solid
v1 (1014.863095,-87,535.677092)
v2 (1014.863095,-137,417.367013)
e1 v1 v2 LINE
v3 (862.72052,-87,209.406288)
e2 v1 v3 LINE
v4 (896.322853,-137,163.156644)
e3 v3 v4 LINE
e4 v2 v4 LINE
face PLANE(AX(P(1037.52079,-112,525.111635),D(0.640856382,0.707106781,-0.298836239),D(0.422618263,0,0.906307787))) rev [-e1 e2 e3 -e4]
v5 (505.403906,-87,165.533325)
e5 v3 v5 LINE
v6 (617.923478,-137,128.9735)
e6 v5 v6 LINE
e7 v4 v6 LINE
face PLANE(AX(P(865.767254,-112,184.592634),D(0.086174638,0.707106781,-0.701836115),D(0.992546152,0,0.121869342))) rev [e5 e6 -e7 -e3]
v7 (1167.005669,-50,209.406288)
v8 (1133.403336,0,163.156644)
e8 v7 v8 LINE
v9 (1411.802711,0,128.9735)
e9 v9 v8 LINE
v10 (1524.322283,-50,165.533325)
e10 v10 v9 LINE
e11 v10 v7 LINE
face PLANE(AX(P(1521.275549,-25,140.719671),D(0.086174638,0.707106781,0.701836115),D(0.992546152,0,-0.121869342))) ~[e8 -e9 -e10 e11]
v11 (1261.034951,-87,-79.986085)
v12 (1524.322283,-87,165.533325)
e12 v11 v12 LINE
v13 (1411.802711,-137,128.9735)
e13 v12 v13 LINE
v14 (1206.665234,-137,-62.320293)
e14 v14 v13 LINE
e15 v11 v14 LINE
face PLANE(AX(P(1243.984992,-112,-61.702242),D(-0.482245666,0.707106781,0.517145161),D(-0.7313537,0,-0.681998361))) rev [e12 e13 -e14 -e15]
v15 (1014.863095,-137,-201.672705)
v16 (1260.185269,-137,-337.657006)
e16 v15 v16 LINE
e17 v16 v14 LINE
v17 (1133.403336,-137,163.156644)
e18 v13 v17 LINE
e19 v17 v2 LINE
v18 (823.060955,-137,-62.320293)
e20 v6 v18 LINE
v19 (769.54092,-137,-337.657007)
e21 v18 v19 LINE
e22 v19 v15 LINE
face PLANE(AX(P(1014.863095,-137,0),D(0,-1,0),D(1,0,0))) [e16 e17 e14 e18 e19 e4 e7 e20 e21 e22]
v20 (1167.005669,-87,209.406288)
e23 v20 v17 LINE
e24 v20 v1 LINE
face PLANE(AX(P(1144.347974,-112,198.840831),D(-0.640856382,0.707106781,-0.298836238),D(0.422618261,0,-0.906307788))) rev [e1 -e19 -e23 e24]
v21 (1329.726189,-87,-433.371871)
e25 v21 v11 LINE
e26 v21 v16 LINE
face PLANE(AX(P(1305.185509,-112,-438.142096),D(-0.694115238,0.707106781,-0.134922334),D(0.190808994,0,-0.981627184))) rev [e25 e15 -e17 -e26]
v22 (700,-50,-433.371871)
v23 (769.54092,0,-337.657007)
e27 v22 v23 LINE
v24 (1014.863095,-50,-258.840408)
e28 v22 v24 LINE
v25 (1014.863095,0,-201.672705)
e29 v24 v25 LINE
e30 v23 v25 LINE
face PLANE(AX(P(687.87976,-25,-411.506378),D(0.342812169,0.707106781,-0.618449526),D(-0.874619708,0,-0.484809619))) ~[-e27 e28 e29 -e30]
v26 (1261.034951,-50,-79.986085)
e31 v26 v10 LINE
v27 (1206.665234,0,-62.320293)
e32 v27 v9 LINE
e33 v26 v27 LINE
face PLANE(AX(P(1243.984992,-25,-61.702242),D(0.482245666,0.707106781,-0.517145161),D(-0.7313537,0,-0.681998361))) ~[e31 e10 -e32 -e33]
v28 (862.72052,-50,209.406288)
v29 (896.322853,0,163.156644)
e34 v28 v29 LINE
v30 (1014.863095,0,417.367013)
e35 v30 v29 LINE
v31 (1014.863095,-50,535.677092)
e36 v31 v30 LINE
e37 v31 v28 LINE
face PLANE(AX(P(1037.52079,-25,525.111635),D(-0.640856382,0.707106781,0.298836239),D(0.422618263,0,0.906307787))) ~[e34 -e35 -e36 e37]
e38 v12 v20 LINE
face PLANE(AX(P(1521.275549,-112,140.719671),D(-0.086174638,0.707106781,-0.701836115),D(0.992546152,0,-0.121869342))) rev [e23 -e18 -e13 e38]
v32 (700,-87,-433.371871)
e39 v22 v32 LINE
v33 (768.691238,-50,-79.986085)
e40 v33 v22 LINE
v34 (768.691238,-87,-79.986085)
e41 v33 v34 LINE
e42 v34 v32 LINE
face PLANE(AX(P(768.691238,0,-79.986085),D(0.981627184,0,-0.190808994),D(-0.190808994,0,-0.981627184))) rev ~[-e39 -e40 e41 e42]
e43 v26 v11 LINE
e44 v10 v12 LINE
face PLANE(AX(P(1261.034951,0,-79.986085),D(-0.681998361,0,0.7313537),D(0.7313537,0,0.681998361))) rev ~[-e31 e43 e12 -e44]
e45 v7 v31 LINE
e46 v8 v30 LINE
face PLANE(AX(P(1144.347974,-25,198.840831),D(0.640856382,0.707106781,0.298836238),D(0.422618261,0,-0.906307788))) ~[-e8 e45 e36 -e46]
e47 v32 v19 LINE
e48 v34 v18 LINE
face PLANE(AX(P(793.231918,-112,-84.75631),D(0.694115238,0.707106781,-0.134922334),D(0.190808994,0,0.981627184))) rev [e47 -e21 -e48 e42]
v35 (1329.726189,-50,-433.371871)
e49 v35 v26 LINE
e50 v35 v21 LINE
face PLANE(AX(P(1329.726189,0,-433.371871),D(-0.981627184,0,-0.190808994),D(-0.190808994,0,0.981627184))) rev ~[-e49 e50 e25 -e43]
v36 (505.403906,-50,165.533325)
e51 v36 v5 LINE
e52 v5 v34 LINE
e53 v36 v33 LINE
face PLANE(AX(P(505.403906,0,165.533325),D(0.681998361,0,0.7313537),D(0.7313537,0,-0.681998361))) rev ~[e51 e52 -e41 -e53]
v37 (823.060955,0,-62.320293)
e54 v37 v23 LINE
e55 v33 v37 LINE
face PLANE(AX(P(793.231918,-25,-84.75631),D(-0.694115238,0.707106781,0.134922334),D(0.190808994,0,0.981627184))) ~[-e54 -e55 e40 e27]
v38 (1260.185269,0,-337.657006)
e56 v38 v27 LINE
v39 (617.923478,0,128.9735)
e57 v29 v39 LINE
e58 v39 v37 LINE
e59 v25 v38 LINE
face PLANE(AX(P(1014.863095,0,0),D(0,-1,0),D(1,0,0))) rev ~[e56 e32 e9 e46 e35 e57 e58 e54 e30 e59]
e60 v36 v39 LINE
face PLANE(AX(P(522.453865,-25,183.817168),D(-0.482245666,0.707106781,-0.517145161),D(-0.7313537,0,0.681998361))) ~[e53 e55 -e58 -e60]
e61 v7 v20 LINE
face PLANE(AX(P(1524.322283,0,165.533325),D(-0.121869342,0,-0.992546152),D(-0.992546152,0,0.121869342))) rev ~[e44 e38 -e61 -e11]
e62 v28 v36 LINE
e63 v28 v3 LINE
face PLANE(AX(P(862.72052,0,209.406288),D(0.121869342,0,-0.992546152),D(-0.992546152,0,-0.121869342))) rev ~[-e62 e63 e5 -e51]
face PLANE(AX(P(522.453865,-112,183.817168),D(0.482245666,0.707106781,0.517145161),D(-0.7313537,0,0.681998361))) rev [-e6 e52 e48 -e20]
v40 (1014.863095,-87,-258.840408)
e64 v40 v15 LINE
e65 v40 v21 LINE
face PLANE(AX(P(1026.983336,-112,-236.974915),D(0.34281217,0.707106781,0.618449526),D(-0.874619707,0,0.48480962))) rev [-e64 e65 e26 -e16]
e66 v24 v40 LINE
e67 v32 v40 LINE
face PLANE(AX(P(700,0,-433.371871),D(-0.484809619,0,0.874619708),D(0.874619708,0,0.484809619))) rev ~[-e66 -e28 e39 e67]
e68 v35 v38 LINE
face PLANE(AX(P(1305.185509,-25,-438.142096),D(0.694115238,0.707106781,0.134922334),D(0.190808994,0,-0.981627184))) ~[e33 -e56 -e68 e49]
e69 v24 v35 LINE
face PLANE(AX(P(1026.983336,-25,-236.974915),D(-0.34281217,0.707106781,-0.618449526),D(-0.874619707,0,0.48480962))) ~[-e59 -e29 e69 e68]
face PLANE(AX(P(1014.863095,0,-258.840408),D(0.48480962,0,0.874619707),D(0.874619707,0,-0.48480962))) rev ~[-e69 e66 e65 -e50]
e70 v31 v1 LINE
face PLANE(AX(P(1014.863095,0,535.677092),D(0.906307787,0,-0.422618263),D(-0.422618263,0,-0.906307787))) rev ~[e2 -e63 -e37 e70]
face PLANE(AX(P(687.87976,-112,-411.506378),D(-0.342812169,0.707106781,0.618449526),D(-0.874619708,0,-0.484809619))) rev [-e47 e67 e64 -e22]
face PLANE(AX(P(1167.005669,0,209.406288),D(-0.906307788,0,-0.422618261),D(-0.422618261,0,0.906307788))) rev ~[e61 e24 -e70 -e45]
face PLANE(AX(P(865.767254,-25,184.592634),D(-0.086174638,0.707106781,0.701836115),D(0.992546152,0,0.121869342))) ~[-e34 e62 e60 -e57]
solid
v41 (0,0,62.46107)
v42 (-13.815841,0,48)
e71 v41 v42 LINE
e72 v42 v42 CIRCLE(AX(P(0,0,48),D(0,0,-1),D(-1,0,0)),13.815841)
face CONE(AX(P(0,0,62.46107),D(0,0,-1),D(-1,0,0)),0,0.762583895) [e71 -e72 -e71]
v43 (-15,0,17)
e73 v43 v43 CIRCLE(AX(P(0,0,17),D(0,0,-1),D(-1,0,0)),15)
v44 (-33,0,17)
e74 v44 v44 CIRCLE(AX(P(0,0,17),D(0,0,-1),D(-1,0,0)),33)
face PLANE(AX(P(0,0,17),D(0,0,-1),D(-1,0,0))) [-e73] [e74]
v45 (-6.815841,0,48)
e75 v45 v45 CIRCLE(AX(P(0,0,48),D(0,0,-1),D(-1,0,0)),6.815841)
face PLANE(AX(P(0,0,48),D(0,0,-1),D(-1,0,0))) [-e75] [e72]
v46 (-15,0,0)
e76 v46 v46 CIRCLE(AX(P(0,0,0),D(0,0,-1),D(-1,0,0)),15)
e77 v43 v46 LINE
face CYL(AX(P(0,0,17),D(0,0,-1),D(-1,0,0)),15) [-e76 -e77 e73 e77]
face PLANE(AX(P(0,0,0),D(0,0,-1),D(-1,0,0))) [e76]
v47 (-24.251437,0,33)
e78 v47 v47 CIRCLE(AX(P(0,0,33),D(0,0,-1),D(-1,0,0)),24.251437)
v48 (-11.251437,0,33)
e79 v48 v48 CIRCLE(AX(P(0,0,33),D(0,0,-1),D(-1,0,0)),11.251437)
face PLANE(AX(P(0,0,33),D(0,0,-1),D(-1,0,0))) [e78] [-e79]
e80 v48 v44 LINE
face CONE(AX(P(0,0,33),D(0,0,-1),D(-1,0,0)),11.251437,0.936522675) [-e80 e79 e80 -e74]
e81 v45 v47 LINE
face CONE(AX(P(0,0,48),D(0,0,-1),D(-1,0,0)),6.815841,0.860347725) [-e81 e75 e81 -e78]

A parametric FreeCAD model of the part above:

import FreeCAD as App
import Part
import Sketcher

V = App.Vector
Q = App.Units.Quantity


def edges_at(feature, points):
    """Names of the edges that pass closest to the given points."""
    edges = feature.Shape.Edges
    near = lambda p: min(range(len(edges)), key=lambda i: edges[i].distToShape(Part.Vertex(*p))[0])
    return sorted({f"Edge{near(p) + 1}" for p in points})


def add_polygon(sketch, points):
    """Adds a closed chain of lines whose ends are joined by coincident constraints."""
    first, n = sketch.GeometryCount, len(points)
    for a, b in zip(points, points[1:] + points[:1]):
        sketch.addGeometry(Part.LineSegment(App.Vector(*a, 0), App.Vector(*b, 0)), False)
    for i in range(n):
        sketch.addConstraint(Sketcher.Constraint("Coincident", first + i, 2, first + (i + 1) % n, 1))

doc = App.newDocument("Part")
body = doc.addObject("PartDesign::Body", "Body")

# Sketch on XZ plane
sketch1 = body.newObject("Sketcher::SketchObject", "Sketch")
sketch1.AttachmentSupport = (doc.getObject("XZ_Plane"), [""])
sketch1.MapMode = "FlatFace"
add_polygon(sketch1, [(-15, 0), (0, 0), (0, 62.46107), (-13.815841, 48), (-6.815841, 48), (-24.251437, 33), (-11.251437, 33), (-33, 17), (-15, 17)])  # lines 0-8
sketch1.addConstraint([
    Sketcher.Constraint("Horizontal", 0),
    Sketcher.Constraint("Vertical", 1),
    Sketcher.Constraint("Horizontal", 3),
    Sketcher.Constraint("Horizontal", 5),
    Sketcher.Constraint("Horizontal", 7),
    Sketcher.Constraint("Vertical", 8),
    Sketcher.Constraint("Coincident", 0, 2, -1, 1),
    Sketcher.Constraint("DistanceX", 0, 1, 0, 2, 15.0),
    Sketcher.Constraint("DistanceX", 3, 1, 3, 2, 7.0),
    Sketcher.Constraint("DistanceX", 5, 1, 5, 2, 13.0),
    Sketcher.Constraint("DistanceX", 7, 1, 7, 2, 18.0),
    Sketcher.Constraint("DistanceY", 8, 2, 8, 1, 17.0),
    Sketcher.Constraint("Distance", 2, 20.0),
    Sketcher.Constraint("Distance", 4, 23.0),
    Sketcher.Constraint("Distance", 6, 27.0),
    Sketcher.Constraint("DistanceY", -1, 1, 2, 2, 48.0),
    Sketcher.Constraint("DistanceY", -1, 1, 4, 2, 33.0),
])
revolution = body.newObject("PartDesign::Revolution", "Revolution")
revolution.Profile = sketch1
revolution.ReferenceAxis = (sketch1, ["V_Axis"])
revolution.Angle = 360
body2 = doc.addObject("PartDesign::Body", "Body001")

# Sketch on XZ plane
sketch2 = body2.newObject("Sketcher::SketchObject", "Sketch001")
sketch2.AttachmentSupport = (doc.getObject("XZ_Plane001"), [""])
sketch2.MapMode = "FlatFace"
add_polygon(sketch2, [(1167.005669, 209.406288), (1014.863095, 535.677092), (862.72052, 209.406288), (505.403906, 165.533325), (768.691238, -79.986085), (700, -433.371871), (1014.863095, -258.840408), (1329.726189, -433.371871), (1261.034951, -79.986085), (1524.322283, 165.533325)])  # lines 0-9
sketch2.addConstraint([
    Sketcher.Constraint("Horizontal", 4, 2, 6, 2),
    Sketcher.Constraint("Horizontal", 3, 2, 7, 2),
    Sketcher.Constraint("Horizontal", 2, 2, 8, 2),
    Sketcher.Constraint("Horizontal", 1, 2, 9, 2),
    Sketcher.Constraint("Vertical", 0, 2, 5, 2),
    Sketcher.Constraint("Equal", 0, 1),
    Sketcher.Constraint("Equal", 1, 2),
    Sketcher.Constraint("Equal", 2, 3),
    Sketcher.Constraint("Equal", 3, 4),
    Sketcher.Constraint("Equal", 4, 5),
    Sketcher.Constraint("Equal", 5, 6),
    Sketcher.Constraint("Equal", 6, 7),
    Sketcher.Constraint("Equal", 7, 8),
    Sketcher.Constraint("Angle", 0, Q("115 deg")),
    Sketcher.Constraint("Angle", 2, Q("-173 deg")),
    Sketcher.Constraint("Angle", 3, Q("-43 deg")),
    Sketcher.Constraint("Angle", 4, Q("-101 deg")),
    Sketcher.Constraint("Distance", 0, 360.000001),
    Sketcher.Constraint("DistanceX", -1, 1, 4, 2, 700.0),
    Sketcher.Constraint("DistanceY", -1, 1, 0, 2, 535.677092),
])
pad1 = body2.newObject("PartDesign::Pad", "Pad")
pad1.Profile = sketch2
pad1.Length = 137
doc.recompute()

chamfer = body2.newObject("PartDesign::Chamfer", "Chamfer")
chamfer.Base = (pad1, edges_at(pad1, [
    (684.062, -137, 187.47),
    (684.062, 0, 187.47),
    (938.792, -137, 372.542),
    (938.792, 0, 372.542),
    (1345.664, -137, 187.47),
    (1345.664, 0, 187.47),
    (734.346, -137, -256.679),
    (734.346, 0, -256.679),
    (637.048, -137, 42.774),
    (637.048, 0, 42.774),
    (857.432, -137, -346.106),
    (1172.295, -137, -346.106),
    (1295.381, -137, -256.679),
    (1392.679, -137, 42.774),
    (1090.934, -137, 372.542),
    (1090.934, 0, 372.542),
    (1392.679, 0, 42.774),
    (1295.381, 0, -256.679),
    (857.432, 0, -346.106),
    (1172.295, 0, -346.106),
]))
chamfer.Size = 50

doc.recompute()
